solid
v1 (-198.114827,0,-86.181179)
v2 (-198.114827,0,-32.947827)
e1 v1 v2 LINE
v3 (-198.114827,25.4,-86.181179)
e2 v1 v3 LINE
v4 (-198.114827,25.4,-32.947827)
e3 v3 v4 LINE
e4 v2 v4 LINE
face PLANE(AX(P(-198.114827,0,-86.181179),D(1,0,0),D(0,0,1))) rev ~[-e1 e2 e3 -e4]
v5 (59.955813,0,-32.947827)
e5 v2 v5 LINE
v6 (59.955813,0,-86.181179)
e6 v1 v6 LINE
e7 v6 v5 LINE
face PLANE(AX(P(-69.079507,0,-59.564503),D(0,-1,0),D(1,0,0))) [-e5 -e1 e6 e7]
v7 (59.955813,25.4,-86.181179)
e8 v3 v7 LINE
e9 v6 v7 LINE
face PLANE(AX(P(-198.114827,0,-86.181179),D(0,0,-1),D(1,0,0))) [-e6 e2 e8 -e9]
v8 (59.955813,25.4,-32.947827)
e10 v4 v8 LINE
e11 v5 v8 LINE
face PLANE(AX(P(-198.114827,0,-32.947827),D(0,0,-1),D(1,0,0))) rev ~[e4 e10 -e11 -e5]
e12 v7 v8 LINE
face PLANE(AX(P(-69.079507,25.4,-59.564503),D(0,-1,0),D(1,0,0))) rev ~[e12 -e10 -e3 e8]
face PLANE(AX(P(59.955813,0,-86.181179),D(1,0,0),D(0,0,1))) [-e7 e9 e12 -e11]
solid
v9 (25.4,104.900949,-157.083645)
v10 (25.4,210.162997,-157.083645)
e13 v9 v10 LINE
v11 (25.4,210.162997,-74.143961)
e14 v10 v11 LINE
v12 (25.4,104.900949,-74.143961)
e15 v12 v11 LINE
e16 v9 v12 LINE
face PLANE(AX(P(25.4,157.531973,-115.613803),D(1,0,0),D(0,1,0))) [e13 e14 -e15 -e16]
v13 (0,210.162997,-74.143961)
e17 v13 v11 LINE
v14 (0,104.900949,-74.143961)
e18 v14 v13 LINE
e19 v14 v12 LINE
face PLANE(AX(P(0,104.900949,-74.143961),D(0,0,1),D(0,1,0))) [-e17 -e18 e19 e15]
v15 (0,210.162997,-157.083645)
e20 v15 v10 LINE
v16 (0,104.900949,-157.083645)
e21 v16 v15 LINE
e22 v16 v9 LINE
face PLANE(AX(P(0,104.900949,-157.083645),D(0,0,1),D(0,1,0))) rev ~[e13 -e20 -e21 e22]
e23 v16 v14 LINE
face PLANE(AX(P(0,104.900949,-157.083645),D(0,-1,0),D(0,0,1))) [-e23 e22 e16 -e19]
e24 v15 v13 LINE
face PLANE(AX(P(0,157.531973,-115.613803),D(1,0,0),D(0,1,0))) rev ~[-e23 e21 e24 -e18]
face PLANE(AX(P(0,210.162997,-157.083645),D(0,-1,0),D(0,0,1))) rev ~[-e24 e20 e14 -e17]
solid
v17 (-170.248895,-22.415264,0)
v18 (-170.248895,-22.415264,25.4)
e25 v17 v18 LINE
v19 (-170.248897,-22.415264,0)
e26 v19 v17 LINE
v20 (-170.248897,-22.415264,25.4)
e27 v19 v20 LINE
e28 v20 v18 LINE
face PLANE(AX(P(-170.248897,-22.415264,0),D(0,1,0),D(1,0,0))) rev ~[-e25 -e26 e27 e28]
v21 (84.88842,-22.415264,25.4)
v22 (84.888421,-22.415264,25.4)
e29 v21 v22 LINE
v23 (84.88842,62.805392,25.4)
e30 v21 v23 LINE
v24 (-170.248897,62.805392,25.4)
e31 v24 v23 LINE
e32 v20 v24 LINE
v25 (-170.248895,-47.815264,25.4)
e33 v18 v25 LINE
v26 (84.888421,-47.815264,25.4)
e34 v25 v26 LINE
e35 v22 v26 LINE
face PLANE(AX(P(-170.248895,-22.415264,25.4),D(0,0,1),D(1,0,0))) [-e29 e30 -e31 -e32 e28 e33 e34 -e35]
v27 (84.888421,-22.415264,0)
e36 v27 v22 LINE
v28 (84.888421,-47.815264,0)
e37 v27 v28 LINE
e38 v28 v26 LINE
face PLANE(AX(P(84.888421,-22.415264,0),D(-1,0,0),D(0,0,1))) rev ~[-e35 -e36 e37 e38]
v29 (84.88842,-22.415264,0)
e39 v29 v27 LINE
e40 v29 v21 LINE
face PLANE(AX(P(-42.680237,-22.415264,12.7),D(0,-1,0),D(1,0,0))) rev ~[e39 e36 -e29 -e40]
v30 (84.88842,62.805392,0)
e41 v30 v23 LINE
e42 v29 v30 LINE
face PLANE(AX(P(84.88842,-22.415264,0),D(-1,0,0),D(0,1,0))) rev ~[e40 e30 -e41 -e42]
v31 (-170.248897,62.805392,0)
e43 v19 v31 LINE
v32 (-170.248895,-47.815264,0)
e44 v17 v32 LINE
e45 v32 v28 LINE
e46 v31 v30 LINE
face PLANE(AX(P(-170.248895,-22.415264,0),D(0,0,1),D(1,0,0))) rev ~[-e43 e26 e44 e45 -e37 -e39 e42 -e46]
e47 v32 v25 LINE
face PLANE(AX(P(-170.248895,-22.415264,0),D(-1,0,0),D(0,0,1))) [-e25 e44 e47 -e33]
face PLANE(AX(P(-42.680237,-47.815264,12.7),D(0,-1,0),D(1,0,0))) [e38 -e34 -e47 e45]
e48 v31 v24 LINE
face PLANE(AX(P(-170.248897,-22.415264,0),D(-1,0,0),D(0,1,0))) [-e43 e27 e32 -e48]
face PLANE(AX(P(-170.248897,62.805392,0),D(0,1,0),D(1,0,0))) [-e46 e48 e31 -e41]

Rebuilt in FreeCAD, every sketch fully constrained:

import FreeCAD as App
import Part
import Sketcher
from FreeCAD import Vector
Q = App.Units.Quantity

doc = App.newDocument("Part")
body = doc.addObject("PartDesign::Body", "Body")

sketch1 = body.newObject("Sketcher::SketchObject", "Sketch")
sketch1.AttachmentSupport = (doc.getObject("XY_Plane"), [""])
sketch1.MapMode = "FlatFace"
sketch1.addGeometry([
    Part.LineSegment(Vector(-170, 63, 0), Vector(-170, -22, 0)),
    Part.LineSegment(Vector(-170, -22, 0), Vector(85, -22, 0)),
    Part.LineSegment(Vector(85, -22, 0), Vector(85, 63, 0)),
    Part.LineSegment(Vector(85, 63, 0), Vector(-170, 63, 0)),
], False)
sketch1.addConstraint([
    Sketcher.Constraint("Coincident", 0, 2, 1, 1),
    Sketcher.Constraint("Coincident", 1, 2, 2, 1),
    Sketcher.Constraint("Coincident", 2, 2, 3, 1),
    Sketcher.Constraint("Coincident", 3, 2, 0, 1),
    Sketcher.Constraint("Vertical", 0),
    Sketcher.Constraint("Horizontal", 1),
    Sketcher.Constraint("Vertical", 2),
    Sketcher.Constraint("Horizontal", 3),
    Sketcher.Constraint("DistanceX", 1, 1, 1, 2, 255.137317),
    Sketcher.Constraint("DistanceY", 0, 2, 0, 1, 85.220656),
    Sketcher.Constraint("DistanceX", -1, 1, 1, 2, 84.88842),
    Sketcher.Constraint("DistanceY", -1, 1, 2, 2, 62.805392),
])
pad1 = body.newObject("PartDesign::Pad", "Pad")
pad1.Profile = sketch1
pad1.Length = Q("1 in")

sketch2 = body.newObject("Sketcher::SketchObject", "Sketch001")
sketch2.AttachmentSupport = (doc.getObject("XZ_Plane"), [""])
sketch2.MapMode = "FlatFace"
sketch2.AttachmentOffset = App.Placement(Vector(0, 0, 22.415264), App.Rotation())
sketch2.addGeometry([
    Part.LineSegment(Vector(-170, 25, 0), Vector(-170, 0, 0)),
    Part.LineSegment(Vector(-170, 0, 0), Vector(85, 0, 0)),
    Part.LineSegment(Vector(85, 0, 0), Vector(85, 25, 0)),
    Part.LineSegment(Vector(85, 25, 0), Vector(-170, 25, 0)),
], False)
sketch2.addConstraint([
    Sketcher.Constraint("Coincident", 0, 2, 1, 1),
    Sketcher.Constraint("Coincident", 1, 2, 2, 1),
    Sketcher.Constraint("Coincident", 2, 2, 3, 1),
    Sketcher.Constraint("Coincident", 3, 2, 0, 1),
    Sketcher.Constraint("Vertical", 0),
    Sketcher.Constraint("Horizontal", 1),
    Sketcher.Constraint("Vertical", 2),
    Sketcher.Constraint("Horizontal", 3),
    Sketcher.Constraint("PointOnObject", 0, 2, -1),
    Sketcher.Constraint("DistanceY", 0, 2, 0, 1, Q("1 in")),
    Sketcher.Constraint("DistanceX", 1, 1, 1, 2, 255.137316),
    Sketcher.Constraint("DistanceX", -1, 1, 1, 2, 84.888421),
])
pad2 = body.newObject("PartDesign::Pad", "Pad001")
pad2.Profile = sketch2
pad2.Length = Q("1 in")
body2 = doc.addObject("PartDesign::Body", "Body001")

sketch3 = body2.newObject("Sketcher::SketchObject", "Sketch002")
sketch3.AttachmentSupport = (doc.getObject("XZ_Plane001"), [""])
sketch3.MapMode = "FlatFace"
sketch3.addGeometry([
    Part.LineSegment(Vector(-198, -33, 0), Vector(-198, -86, 0)),
    Part.LineSegment(Vector(-198, -86, 0), Vector(60, -86, 0)),
    Part.LineSegment(Vector(60, -86, 0), Vector(60, -33, 0)),
    Part.LineSegment(Vector(60, -33, 0), Vector(-198, -33, 0)),
], False)
sketch3.addConstraint([
    Sketcher.Constraint("Coincident", 0, 2, 1, 1),
    Sketcher.Constraint("Coincident", 1, 2, 2, 1),
    Sketcher.Constraint("Coincident", 2, 2, 3, 1),
    Sketcher.Constraint("Coincident", 3, 2, 0, 1),
    Sketcher.Constraint("Vertical", 0),
    Sketcher.Constraint("Horizontal", 1),
    Sketcher.Constraint("Vertical", 2),
    Sketcher.Constraint("Horizontal", 3),
    Sketcher.Constraint("DistanceX", 1, 1, 1, 2, 258.07064),
    Sketcher.Constraint("DistanceY", 0, 2, 0, 1, 53.233352),
    Sketcher.Constraint("DistanceY", 0, 2, -1, 1, 86.181179),
    Sketcher.Constraint("DistanceX", 0, 2, -1, 1, 198.114827),
])
pad3 = body2.newObject("PartDesign::Pad", "Pad002")
pad3.Profile = sketch3
pad3.Length = Q("1 in")
pad3.Reversed = True
body3 = doc.addObject("PartDesign::Body", "Body002")

sketch4 = body3.newObject("Sketcher::SketchObject", "Sketch003")
sketch4.AttachmentSupport = (doc.getObject("YZ_Plane002"), [""])
sketch4.MapMode = "FlatFace"
sketch4.addGeometry([
    Part.LineSegment(Vector(105, -74, 0), Vector(105, -157, 0)),
    Part.LineSegment(Vector(105, -157, 0), Vector(210, -157, 0)),
    Part.LineSegment(Vector(210, -157, 0), Vector(210, -74, 0)),
    Part.LineSegment(Vector(210, -74, 0), Vector(105, -74, 0)),
], False)
sketch4.addConstraint([
    Sketcher.Constraint("Coincident", 0, 2, 1, 1),
    Sketcher.Constraint("Coincident", 1, 2, 2, 1),
    Sketcher.Constraint("Coincident", 2, 2, 3, 1),
    Sketcher.Constraint("Coincident", 3, 2, 0, 1),
    Sketcher.Constraint("Vertical", 0),
    Sketcher.Constraint("Horizontal", 1),
    Sketcher.Constraint("Vertical", 2),
    Sketcher.Constraint("Horizontal", 3),
    Sketcher.Constraint("DistanceX", 1, 1, 1, 2, 105.262048),
    Sketcher.Constraint("DistanceY", 0, 2, 0, 1, 82.939684),
    Sketcher.Constraint("DistanceX", -1, 1, 0, 2, 104.900949),
    Sketcher.Constraint("DistanceY", 2, 2, -1, 1, 74.143961),
])
pad4 = body3.newObject("PartDesign::Pad", "Pad003")
pad4.Profile = sketch4
pad4.Length = Q("1 in")

doc.recompute()
